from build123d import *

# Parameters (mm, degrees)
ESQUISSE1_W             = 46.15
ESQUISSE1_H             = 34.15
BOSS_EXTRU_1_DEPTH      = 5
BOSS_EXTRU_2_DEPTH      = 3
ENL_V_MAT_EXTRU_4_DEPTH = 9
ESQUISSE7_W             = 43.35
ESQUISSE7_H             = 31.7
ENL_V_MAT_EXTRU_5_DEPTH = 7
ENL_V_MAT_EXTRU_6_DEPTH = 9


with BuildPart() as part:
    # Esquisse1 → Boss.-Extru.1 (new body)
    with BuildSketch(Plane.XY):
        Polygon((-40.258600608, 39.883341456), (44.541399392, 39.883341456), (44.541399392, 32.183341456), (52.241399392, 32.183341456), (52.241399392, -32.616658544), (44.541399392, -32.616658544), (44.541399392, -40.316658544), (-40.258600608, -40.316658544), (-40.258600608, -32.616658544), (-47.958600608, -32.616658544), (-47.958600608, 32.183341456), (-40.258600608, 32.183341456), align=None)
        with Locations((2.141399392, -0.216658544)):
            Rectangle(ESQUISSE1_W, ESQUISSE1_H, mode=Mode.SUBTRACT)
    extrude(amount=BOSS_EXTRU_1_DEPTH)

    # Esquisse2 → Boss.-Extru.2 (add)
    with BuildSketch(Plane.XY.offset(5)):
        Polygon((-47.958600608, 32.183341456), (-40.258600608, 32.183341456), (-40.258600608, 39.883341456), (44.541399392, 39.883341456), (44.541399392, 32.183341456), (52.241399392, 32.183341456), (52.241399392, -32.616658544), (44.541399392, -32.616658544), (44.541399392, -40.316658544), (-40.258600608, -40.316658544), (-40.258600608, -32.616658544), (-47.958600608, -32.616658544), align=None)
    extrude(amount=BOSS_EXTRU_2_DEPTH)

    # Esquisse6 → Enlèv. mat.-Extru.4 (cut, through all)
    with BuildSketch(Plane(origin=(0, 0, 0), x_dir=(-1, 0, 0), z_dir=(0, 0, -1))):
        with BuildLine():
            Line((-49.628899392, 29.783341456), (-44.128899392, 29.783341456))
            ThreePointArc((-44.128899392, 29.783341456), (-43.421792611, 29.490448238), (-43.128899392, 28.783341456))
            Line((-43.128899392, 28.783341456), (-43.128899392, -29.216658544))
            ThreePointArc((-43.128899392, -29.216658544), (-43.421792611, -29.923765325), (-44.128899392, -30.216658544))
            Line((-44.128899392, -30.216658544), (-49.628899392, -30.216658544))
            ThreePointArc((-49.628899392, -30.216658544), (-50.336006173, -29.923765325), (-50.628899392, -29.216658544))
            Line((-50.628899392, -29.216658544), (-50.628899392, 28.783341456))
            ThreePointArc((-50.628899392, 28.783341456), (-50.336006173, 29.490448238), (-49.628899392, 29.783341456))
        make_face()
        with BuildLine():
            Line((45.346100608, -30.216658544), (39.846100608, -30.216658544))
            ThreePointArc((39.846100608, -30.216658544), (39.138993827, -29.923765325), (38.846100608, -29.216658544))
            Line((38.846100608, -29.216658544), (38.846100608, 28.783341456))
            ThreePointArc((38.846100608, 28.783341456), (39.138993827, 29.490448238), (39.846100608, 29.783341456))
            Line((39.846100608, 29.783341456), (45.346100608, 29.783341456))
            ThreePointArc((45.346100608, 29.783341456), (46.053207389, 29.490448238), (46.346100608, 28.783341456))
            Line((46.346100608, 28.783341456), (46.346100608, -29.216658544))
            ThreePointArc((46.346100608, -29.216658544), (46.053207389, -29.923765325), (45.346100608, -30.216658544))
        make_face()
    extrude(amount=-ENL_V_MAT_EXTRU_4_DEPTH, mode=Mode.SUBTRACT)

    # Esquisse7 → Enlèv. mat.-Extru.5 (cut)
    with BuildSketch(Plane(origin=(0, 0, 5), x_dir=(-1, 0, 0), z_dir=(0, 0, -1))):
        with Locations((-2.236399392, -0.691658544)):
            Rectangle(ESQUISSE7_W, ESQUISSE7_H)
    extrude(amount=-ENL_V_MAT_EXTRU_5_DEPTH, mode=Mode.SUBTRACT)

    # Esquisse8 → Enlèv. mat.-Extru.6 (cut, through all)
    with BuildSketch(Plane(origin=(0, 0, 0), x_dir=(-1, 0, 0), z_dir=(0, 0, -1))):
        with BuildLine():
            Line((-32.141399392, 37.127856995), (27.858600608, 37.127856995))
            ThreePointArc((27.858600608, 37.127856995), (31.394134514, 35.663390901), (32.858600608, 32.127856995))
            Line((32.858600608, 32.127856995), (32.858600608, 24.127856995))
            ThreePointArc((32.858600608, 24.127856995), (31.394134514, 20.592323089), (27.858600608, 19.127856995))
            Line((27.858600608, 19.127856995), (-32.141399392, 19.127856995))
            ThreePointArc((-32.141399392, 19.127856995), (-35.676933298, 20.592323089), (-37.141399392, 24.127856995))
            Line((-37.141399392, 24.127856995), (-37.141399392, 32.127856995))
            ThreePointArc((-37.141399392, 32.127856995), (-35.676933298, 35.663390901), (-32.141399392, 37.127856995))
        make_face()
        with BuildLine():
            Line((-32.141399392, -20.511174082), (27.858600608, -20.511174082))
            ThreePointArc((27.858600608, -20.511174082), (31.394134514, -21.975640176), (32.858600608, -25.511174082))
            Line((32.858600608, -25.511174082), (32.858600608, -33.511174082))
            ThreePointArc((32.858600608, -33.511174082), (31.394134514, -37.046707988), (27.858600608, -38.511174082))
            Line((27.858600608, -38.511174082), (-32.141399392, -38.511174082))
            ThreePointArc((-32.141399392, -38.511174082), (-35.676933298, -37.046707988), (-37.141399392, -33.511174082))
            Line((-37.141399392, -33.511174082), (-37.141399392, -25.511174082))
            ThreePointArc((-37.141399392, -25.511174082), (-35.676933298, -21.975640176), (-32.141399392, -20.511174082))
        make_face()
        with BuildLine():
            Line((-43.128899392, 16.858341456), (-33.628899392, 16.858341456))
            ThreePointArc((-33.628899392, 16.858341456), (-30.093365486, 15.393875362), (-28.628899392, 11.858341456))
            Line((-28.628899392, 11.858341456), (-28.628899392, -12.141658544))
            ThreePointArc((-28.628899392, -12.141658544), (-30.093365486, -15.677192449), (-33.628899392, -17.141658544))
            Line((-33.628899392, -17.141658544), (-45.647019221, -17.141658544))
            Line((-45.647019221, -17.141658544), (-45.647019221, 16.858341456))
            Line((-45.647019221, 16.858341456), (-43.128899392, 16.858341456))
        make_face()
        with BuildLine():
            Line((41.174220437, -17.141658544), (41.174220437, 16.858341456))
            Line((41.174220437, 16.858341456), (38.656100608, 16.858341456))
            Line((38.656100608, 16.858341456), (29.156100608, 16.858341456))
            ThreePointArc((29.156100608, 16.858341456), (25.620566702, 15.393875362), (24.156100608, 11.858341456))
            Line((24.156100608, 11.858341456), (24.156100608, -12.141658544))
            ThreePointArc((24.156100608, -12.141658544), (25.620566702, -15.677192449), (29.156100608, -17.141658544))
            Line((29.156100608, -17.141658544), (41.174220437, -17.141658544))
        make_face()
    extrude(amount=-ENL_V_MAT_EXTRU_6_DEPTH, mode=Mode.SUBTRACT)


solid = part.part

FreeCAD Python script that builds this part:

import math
import FreeCAD as App
import Part
import Sketcher

V = App.Vector

doc = App.newDocument("Part")
body = doc.addObject("PartDesign::Body", "Body")

# Sketch on XY plane
sketch1 = body.newObject("Sketcher::SketchObject", "Sketch")
sketch1.AttachmentSupport = (doc.getObject("XY_Plane"), [""])
sketch1.MapMode = "FlatFace"
sketch1.addGeometry([
    Part.LineSegment(V(45, 40, 0), V(-40, 40, 0)),  # 0
    Part.LineSegment(V(-40, 40, 0), V(-40, 32, 0)),  # 1
    Part.LineSegment(V(-40, 32, 0), V(-48, 32, 0)),  # 2
    Part.LineSegment(V(-48, 32, 0), V(-48, -33, 0)),  # 3
    Part.LineSegment(V(-48, -33, 0), V(-40, -33, 0)),  # 4
    Part.LineSegment(V(-40, -33, 0), V(-40, -40, 0)),  # 5
    Part.LineSegment(V(-40, -40, 0), V(45, -40, 0)),  # 6
    Part.LineSegment(V(45, -40, 0), V(45, -33, 0)),  # 7
    Part.LineSegment(V(45, -33, 0), V(52, -33, 0)),  # 8
    Part.LineSegment(V(52, -33, 0), V(52, 32, 0)),  # 9
    Part.LineSegment(V(52, 32, 0), V(45, 32, 0)),  # 10
    Part.LineSegment(V(45, 32, 0), V(45, 40, 0)),  # 11
    Part.LineSegment(V(-21, -17, 0), V(-21, 17, 0)),  # 12
    Part.LineSegment(V(-21, 17, 0), V(25, 17, 0)),  # 13
    Part.LineSegment(V(25, 17, 0), V(25, -17, 0)),  # 14
    Part.LineSegment(V(25, -17, 0), V(-21, -17, 0)),  # 15
], False)
sketch1.addConstraint([
    Sketcher.Constraint("Coincident", 0, 2, 1, 1),
    Sketcher.Constraint("Coincident", 1, 2, 2, 1),
    Sketcher.Constraint("Coincident", 2, 2, 3, 1),
    Sketcher.Constraint("Coincident", 3, 2, 4, 1),
    Sketcher.Constraint("Coincident", 4, 2, 5, 1),
    Sketcher.Constraint("Coincident", 5, 2, 6, 1),
    Sketcher.Constraint("Coincident", 6, 2, 7, 1),
    Sketcher.Constraint("Coincident", 7, 2, 8, 1),
    Sketcher.Constraint("Coincident", 8, 2, 9, 1),
    Sketcher.Constraint("Coincident", 9, 2, 10, 1),
    Sketcher.Constraint("Coincident", 10, 2, 11, 1),
    Sketcher.Constraint("Coincident", 11, 2, 0, 1),
    Sketcher.Constraint("Coincident", 12, 2, 13, 1),
    Sketcher.Constraint("Coincident", 13, 2, 14, 1),
    Sketcher.Constraint("Coincident", 14, 2, 15, 1),
    Sketcher.Constraint("Coincident", 15, 2, 12, 1),
    Sketcher.Constraint("Horizontal", 0),
    Sketcher.Constraint("Vertical", 1),
    Sketcher.Constraint("Horizontal", 2),
    Sketcher.Constraint("Vertical", 3),
    Sketcher.Constraint("Horizontal", 4),
    Sketcher.Constraint("Vertical", 5),
    Sketcher.Constraint("Horizontal", 6),
    Sketcher.Constraint("Vertical", 7),
    Sketcher.Constraint("Horizontal", 8),
    Sketcher.Constraint("Vertical", 9),
    Sketcher.Constraint("Horizontal", 10),
    Sketcher.Constraint("Vertical", 11),
    Sketcher.Constraint("Vertical", 12),
    Sketcher.Constraint("Horizontal", 13),
    Sketcher.Constraint("Vertical", 14),
    Sketcher.Constraint("Horizontal", 15),
    Sketcher.Constraint("Horizontal", 4, 2, 7, 2),
    Sketcher.Constraint("Horizontal", 2, 2, 9, 2),
    Sketcher.Constraint("Vertical", 1, 2, 4, 2),
    Sketcher.Constraint("Vertical", 7, 2, 10, 2),
    Sketcher.Constraint("Equal", 4, 8),
    Sketcher.Constraint("Equal", 10, 1),
    Sketcher.Constraint("Equal", 1, 5),
    Sketcher.Constraint("DistanceX", 0, 2, 0, 1, 84.8),
    Sketcher.Constraint("DistanceX", 2, 2, 2, 1, 7.7),
    Sketcher.Constraint("DistanceY", 3, 2, 3, 1, 64.8),
    Sketcher.Constraint("DistanceX", 13, 1, 13, 2, 46.15),
    Sketcher.Constraint("DistanceY", 12, 1, 12, 2, 34.15),
    Sketcher.Constraint("DistanceX", 1, 2, 12, 2, 19.325),
    Sketcher.Constraint("DistanceY", 12, 2, 1, 2, 15.325),
    Sketcher.Constraint("DistanceX", 0, 2, -1, 1, 40.258601),
    Sketcher.Constraint("DistanceY", -1, 1, 0, 2, 39.883341),
])
pad1 = body.newObject("PartDesign::Pad", "Pad")
pad1.Profile = sketch1
pad1.Length = 5

# Sketch on XY plane
sketch2 = body.newObject("Sketcher::SketchObject", "Sketch001")
sketch2.AttachmentSupport = (doc.getObject("XY_Plane"), [""])
sketch2.MapMode = "FlatFace"
sketch2.AttachmentOffset = App.Placement(V(0, 0, 5), App.Rotation())
sketch2.addGeometry([
    Part.LineSegment(V(-40, 32, 0), V(-48, 32, 0)),  # 0
    Part.LineSegment(V(-48, 32, 0), V(-48, -33, 0)),  # 1
    Part.LineSegment(V(-48, -33, 0), V(-40, -33, 0)),  # 2
    Part.LineSegment(V(-40, -33, 0), V(-40, -40, 0)),  # 3
    Part.LineSegment(V(-40, -40, 0), V(45, -40, 0)),  # 4
    Part.LineSegment(V(45, -40, 0), V(45, -33, 0)),  # 5
    Part.LineSegment(V(45, -33, 0), V(52, -33, 0)),  # 6
    Part.LineSegment(V(52, -33, 0), V(52, 32, 0)),  # 7
    Part.LineSegment(V(52, 32, 0), V(45, 32, 0)),  # 8
    Part.LineSegment(V(45, 32, 0), V(45, 40, 0)),  # 9
    Part.LineSegment(V(45, 40, 0), V(-40, 40, 0)),  # 10
    Part.LineSegment(V(-40, 40, 0), V(-40, 32, 0)),  # 11
], False)
sketch2.addConstraint([
    Sketcher.Constraint("Coincident", 0, 2, 1, 1),
    Sketcher.Constraint("Coincident", 1, 2, 2, 1),
    Sketcher.Constraint("Coincident", 2, 2, 3, 1),
    Sketcher.Constraint("Coincident", 3, 2, 4, 1),
    Sketcher.Constraint("Coincident", 4, 2, 5, 1),
    Sketcher.Constraint("Coincident", 5, 2, 6, 1),
    Sketcher.Constraint("Coincident", 6, 2, 7, 1),
    Sketcher.Constraint("Coincident", 7, 2, 8, 1),
    Sketcher.Constraint("Coincident", 8, 2, 9, 1),
    Sketcher.Constraint("Coincident", 9, 2, 10, 1),
    Sketcher.Constraint("Coincident", 10, 2, 11, 1),
    Sketcher.Constraint("Coincident", 11, 2, 0, 1),
    Sketcher.Constraint("Horizontal", 0),
    Sketcher.Constraint("Vertical", 1),
    Sketcher.Constraint("Horizontal", 2),
    Sketcher.Constraint("Vertical", 3),
    Sketcher.Constraint("Horizontal", 4),
    Sketcher.Constraint("Vertical", 5),
    Sketcher.Constraint("Horizontal", 6),
    Sketcher.Constraint("Vertical", 7),
    Sketcher.Constraint("Horizontal", 8),
    Sketcher.Constraint("Vertical", 9),
    Sketcher.Constraint("Horizontal", 10),
    Sketcher.Constraint("Vertical", 11),
    Sketcher.Constraint("Horizontal", 2, 2, 5, 2),
    Sketcher.Constraint("Horizontal", 0, 2, 7, 2),
    Sketcher.Constraint("Vertical", 5, 2, 8, 2),
    Sketcher.Constraint("Vertical", 3, 2, 10, 2),
    Sketcher.Constraint("Equal", 2, 6),
    Sketcher.Constraint("Equal", 8, 3),
    Sketcher.Constraint("Equal", 5, 9),
    Sketcher.Constraint("DistanceX", 0, 2, 0, 1, 7.7),
    Sketcher.Constraint("DistanceX", 4, 1, 4, 2, 84.8),
    Sketcher.Constraint("DistanceY", 1, 2, 1, 1, 64.8),
    Sketcher.Constraint("DistanceX", 0, 2, -1, 1, 47.958601),
    Sketcher.Constraint("DistanceY", -1, 1, 0, 2, 32.183341),
])
pad2 = body.newObject("PartDesign::Pad", "Pad001")
pad2.Profile = sketch2
pad2.Length = 3

# Sketch on XY plane
sketch3 = body.newObject("Sketcher::SketchObject", "Sketch002")
sketch3.AttachmentSupport = (doc.getObject("XY_Plane"), [""])
sketch3.MapMode = "FlatFace"
sketch3.addGeometry([
    Part.LineSegment(V(44.1, 29.8, 0), V(49.6, 29.8, 0)),  # 0
    Part.ArcOfCircle(Part.Circle(V(49.6, 28.8, 0), V(0, 0, 1), 1), math.radians(0), math.radians(90)),  # 1
    Part.LineSegment(V(50.6, 28.8, 0), V(50.6, -29.2, 0)),  # 2
    Part.ArcOfCircle(Part.Circle(V(49.6, -29.2, 0), V(0, 0, 1), 1), math.radians(-90), math.radians(0)),  # 3
    Part.LineSegment(V(49.6, -30.2, 0), V(44.1, -30.2, 0)),  # 4
    Part.ArcOfCircle(Part.Circle(V(44.1, -29.2, 0), V(0, 0, 1), 1), math.radians(-180), math.radians(-90)),  # 5
    Part.LineSegment(V(43.1, -29.2, 0), V(43.1, 28.8, 0)),  # 6
    Part.ArcOfCircle(Part.Circle(V(44.1, 28.8, 0), V(0, 0, 1), 1), math.radians(90), math.radians(180)),  # 7
    Part.LineSegment(V(-39.8, -30.2, 0), V(-45.3, -30.2, 0)),  # 8
    Part.ArcOfCircle(Part.Circle(V(-45.3, -29.2, 0), V(0, 0, 1), 1), math.radians(-180), math.radians(-90)),  # 9
    Part.LineSegment(V(-46.3, -29.2, 0), V(-46.3, 28.8, 0)),  # 10
    Part.ArcOfCircle(Part.Circle(V(-45.3, 28.8, 0), V(0, 0, 1), 1), math.radians(90), math.radians(180)),  # 11
    Part.LineSegment(V(-45.3, 29.8, 0), V(-39.8, 29.8, 0)),  # 12
    Part.ArcOfCircle(Part.Circle(V(-39.8, 28.8, 0), V(0, 0, 1), 1), math.radians(0), math.radians(90)),  # 13
    Part.LineSegment(V(-38.8, 28.8, 0), V(-38.8, -29.2, 0)),  # 14
    Part.ArcOfCircle(Part.Circle(V(-39.8, -29.2, 0), V(0, 0, 1), 1), math.radians(-90), math.radians(0)),  # 15
], False)
sketch3.addConstraint([
    Sketcher.Constraint("Tangent", 0, 2, 1, 2),
    Sketcher.Constraint("Tangent", 1, 1, 2, 1),
    Sketcher.Constraint("Tangent", 2, 2, 3, 2),
    Sketcher.Constraint("Tangent", 3, 1, 4, 1),
    Sketcher.Constraint("Tangent", 4, 2, 5, 2),
    Sketcher.Constraint("Tangent", 5, 1, 6, 1),
    Sketcher.Constraint("Tangent", 6, 2, 7, 2),
    Sketcher.Constraint("Tangent", 7, 1, 0, 1),
    Sketcher.Constraint("Tangent", 8, 2, 9, 2),
    Sketcher.Constraint("Tangent", 9, 1, 10, 1),
    Sketcher.Constraint("Tangent", 10, 2, 11, 2),
    Sketcher.Constraint("Tangent", 11, 1, 12, 1),
    Sketcher.Constraint("Tangent", 12, 2, 13, 2),
    Sketcher.Constraint("Tangent", 13, 1, 14, 1),
    Sketcher.Constraint("Tangent", 14, 2, 15, 2),
    Sketcher.Constraint("Tangent", 15, 1, 8, 1),
    Sketcher.Constraint("Horizontal", 0),
    Sketcher.Constraint("Vertical", 2),
    Sketcher.Constraint("Horizontal", 4),
    Sketcher.Constraint("Vertical", 6),
    Sketcher.Constraint("Horizontal", 8),
    Sketcher.Constraint("Vertical", 10),
    Sketcher.Constraint("Horizontal", 12),
    Sketcher.Constraint("Vertical", 14),
    Sketcher.Constraint("Equal", 1, 3),
    Sketcher.Constraint("Equal", 3, 5),
    Sketcher.Constraint("Equal", 5, 7),
    Sketcher.Constraint("Equal", 7, 9),
    Sketcher.Constraint("Equal", 9, 11),
    Sketcher.Constraint("Equal", 11, 13),
    Sketcher.Constraint("Equal", 13, 15),
    Sketcher.Constraint("Horizontal", 5, 3, 9, 3),
    Sketcher.Constraint("Horizontal", 7, 3, 11, 3),
    Sketcher.Constraint("Equal", 4, 8),
    Sketcher.Constraint("Radius", 1, 1.0),
    Sketcher.Constraint("DistanceY", 2, 2, 2, 1, 58.0),
    Sketcher.Constraint("DistanceX", 0, 1, 0, 2, 5.5),
    Sketcher.Constraint("DistanceX", 9, 3, 5, 3, 89.475),
    Sketcher.Constraint("DistanceX", -1, 1, 1, 3, 49.628899),
    Sketcher.Constraint("DistanceY", -1, 1, 1, 3, 28.783341),
])
pocket1 = body.newObject("PartDesign::Pocket", "Pocket")
pocket1.Profile = sketch3
pocket1.Type = "ThroughAll"
pocket1.Reversed = True

# Sketch on XY plane
sketch4 = body.newObject("Sketcher::SketchObject", "Sketch003")
sketch4.AttachmentSupport = (doc.getObject("XY_Plane"), [""])
sketch4.MapMode = "FlatFace"
sketch4.AttachmentOffset = App.Placement(V(0, 0, 5), App.Rotation())
sketch4.addGeometry([
    Part.LineSegment(V(24, 15, 0), V(24, -17, 0)),
    Part.LineSegment(V(24, -17, 0), V(-19, -17, 0)),
    Part.LineSegment(V(-19, -17, 0), V(-19, 15, 0)),
    Part.LineSegment(V(-19, 15, 0), V(24, 15, 0)),
], False)
sketch4.addConstraint([
    Sketcher.Constraint("Coincident", 0, 2, 1, 1),
    Sketcher.Constraint("Coincident", 1, 2, 2, 1),
    Sketcher.Constraint("Coincident", 2, 2, 3, 1),
    Sketcher.Constraint("Coincident", 3, 2, 0, 1),
    Sketcher.Constraint("Vertical", 0),
    Sketcher.Constraint("Horizontal", 1),
    Sketcher.Constraint("Vertical", 2),
    Sketcher.Constraint("Horizontal", 3),
    Sketcher.Constraint("DistanceY", 0, 2, 0, 1, 31.7),
    Sketcher.Constraint("DistanceX", 1, 2, 1, 1, 43.35),
    Sketcher.Constraint("DistanceX", -1, 1, 0, 2, 23.911399),
    Sketcher.Constraint("DistanceY", 0, 2, -1, 1, 16.541659),
])
pocket2 = body.newObject("PartDesign::Pocket", "Pocket001")
pocket2.Profile = sketch4
pocket2.Length = 7
pocket2.Reversed = True

# Sketch on XY plane
sketch5 = body.newObject("Sketcher::SketchObject", "Sketch004")
sketch5.AttachmentSupport = (doc.getObject("XY_Plane"), [""])
sketch5.MapMode = "FlatFace"
sketch5.addGeometry([
    Part.LineSegment(V(-28, 37, 0), V(32, 37, 0)),  # 0
    Part.ArcOfCircle(Part.Circle(V(32, 32, 0), V(0, 0, 1), 5), math.radians(0), math.radians(90)),  # 1
    Part.LineSegment(V(37, 32, 0), V(37, 24, 0)),  # 2
    Part.ArcOfCircle(Part.Circle(V(32, 24, 0), V(0, 0, 1), 5), math.radians(-90), math.radians(0)),  # 3
    Part.LineSegment(V(32, 19, 0), V(-28, 19, 0)),  # 4
    Part.ArcOfCircle(Part.Circle(V(-28, 24, 0), V(0, 0, 1), 5), math.radians(180), math.radians(270)),  # 5
    Part.LineSegment(V(-33, 24, 0), V(-33, 32, 0)),  # 6
    Part.ArcOfCircle(Part.Circle(V(-28, 32, 0), V(0, 0, 1), 5), math.radians(90), math.radians(180)),  # 7
    Part.LineSegment(V(-28, -21, 0), V(32, -21, 0)),  # 8
    Part.ArcOfCircle(Part.Circle(V(32, -26, 0), V(0, 0, 1), 5), math.radians(0), math.radians(90)),  # 9
    Part.LineSegment(V(37, -26, 0), V(37, -34, 0)),  # 10
    Part.ArcOfCircle(Part.Circle(V(32, -34, 0), V(0, 0, 1), 5), math.radians(-90), math.radians(0)),  # 11
    Part.LineSegment(V(32, -39, 0), V(-28, -39, 0)),  # 12
    Part.ArcOfCircle(Part.Circle(V(-28, -34, 0), V(0, 0, 1), 5), math.radians(180), math.radians(270)),  # 13
    Part.LineSegment(V(-33, -34, 0), V(-33, -26, 0)),  # 14
    Part.ArcOfCircle(Part.Circle(V(-28, -26, 0), V(0, 0, 1), 5), math.radians(90), math.radians(180)),  # 15
    Part.ArcOfCircle(Part.Circle(V(34, 12, 0), V(0, 0, 1), 5), math.radians(90), math.radians(180)),  # 16
    Part.LineSegment(V(34, 17, 0), V(46, 17, 0)),  # 17
    Part.LineSegment(V(46, 17, 0), V(46, -17, 0)),  # 18
    Part.LineSegment(V(46, -17, 0), V(34, -17, 0)),  # 19
    Part.ArcOfCircle(Part.Circle(V(34, -12, 0), V(0, 0, 1), 5), math.radians(-180), math.radians(-90)),  # 20
    Part.LineSegment(V(29, -12, 0), V(29, 12, 0)),  # 21
    Part.LineSegment(V(-41, -17, 0), V(-41, 17, 0)),  # 22
    Part.LineSegment(V(-41, 17, 0), V(-29, 17, 0)),  # 23
    Part.ArcOfCircle(Part.Circle(V(-29, 12, 0), V(0, 0, 1), 5), math.radians(0), math.radians(90)),  # 24
    Part.LineSegment(V(-24, 12, 0), V(-24, -12, 0)),  # 25
    Part.ArcOfCircle(Part.Circle(V(-29, -12, 0), V(0, 0, 1), 5), math.radians(-90), math.radians(0)),  # 26
    Part.LineSegment(V(-29, -17, 0), V(-41, -17, 0)),  # 27
], False)
sketch5.addConstraint([
    Sketcher.Constraint("Tangent", 0, 2, 1, 2),
    Sketcher.Constraint("Tangent", 1, 1, 2, 1),
    Sketcher.Constraint("Tangent", 2, 2, 3, 2),
    Sketcher.Constraint("Tangent", 3, 1, 4, 1),
    Sketcher.Constraint("Tangent", 4, 2, 5, 2),
    Sketcher.Constraint("Tangent", 5, 1, 6, 1),
    Sketcher.Constraint("Tangent", 6, 2, 7, 2),
    Sketcher.Constraint("Tangent", 7, 1, 0, 1),
    Sketcher.Constraint("Tangent", 8, 2, 9, 2),
    Sketcher.Constraint("Tangent", 9, 1, 10, 1),
    Sketcher.Constraint("Tangent", 10, 2, 11, 2),
    Sketcher.Constraint("Tangent", 11, 1, 12, 1),
    Sketcher.Constraint("Tangent", 12, 2, 13, 2),
    Sketcher.Constraint("Tangent", 13, 1, 14, 1),
    Sketcher.Constraint("Tangent", 14, 2, 15, 2),
    Sketcher.Constraint("Tangent", 15, 1, 8, 1),
    Sketcher.Constraint("Tangent", 16, 1, 17, 1),
    Sketcher.Constraint("Coincident", 17, 2, 18, 1),
    Sketcher.Constraint("Coincident", 18, 2, 19, 1),
    Sketcher.Constraint("Tangent", 19, 2, 20, 2),
    Sketcher.Constraint("Tangent", 20, 1, 21, 1),
    Sketcher.Constraint("Tangent", 21, 2, 16, 2),
    Sketcher.Constraint("Coincident", 22, 2, 23, 1),
    Sketcher.Constraint("Tangent", 23, 2, 24, 2),
    Sketcher.Constraint("Tangent", 24, 1, 25, 1),
    Sketcher.Constraint("Tangent", 25, 2, 26, 2),
    Sketcher.Constraint("Tangent", 26, 1, 27, 1),
    Sketcher.Constraint("Coincident", 27, 2, 22, 1),
    Sketcher.Constraint("Horizontal", 0),
    Sketcher.Constraint("Vertical", 2),
    Sketcher.Constraint("Horizontal", 4),
    Sketcher.Constraint("Vertical", 6),
    Sketcher.Constraint("Horizontal", 8),
    Sketcher.Constraint("Vertical", 10),
    Sketcher.Constraint("Horizontal", 12),
    Sketcher.Constraint("Vertical", 14),
    Sketcher.Constraint("Horizontal", 17),
    Sketcher.Constraint("Vertical", 18),
    Sketcher.Constraint("Horizontal", 19),
    Sketcher.Constraint("Vertical", 21),
    Sketcher.Constraint("Vertical", 22),
    Sketcher.Constraint("Horizontal", 23),
    Sketcher.Constraint("Vertical", 25),
    Sketcher.Constraint("Horizontal", 27),
    Sketcher.Constraint("Equal", 1, 3),
    Sketcher.Constraint("Equal", 3, 5),
    Sketcher.Constraint("Equal", 5, 7),
    Sketcher.Constraint("Equal", 7, 9),
    Sketcher.Constraint("Equal", 9, 11),
    Sketcher.Constraint("Equal", 11, 13),
    Sketcher.Constraint("Equal", 13, 15),
    Sketcher.Constraint("Equal", 15, 16),
    Sketcher.Constraint("Equal", 16, 20),
    Sketcher.Constraint("Equal", 20, 24),
    Sketcher.Constraint("Equal", 24, 26),
    Sketcher.Constraint("Horizontal", 16, 3, 24, 3),
    Sketcher.Constraint("Horizontal", 20, 3, 26, 3),
    Sketcher.Constraint("Vertical", 3, 3, 9, 3),
    Sketcher.Constraint("Vertical", 7, 3, 13, 3),
    Sketcher.Constraint("Equal", 19, 23),
    Sketcher.Constraint("Equal", 6, 10),
    Sketcher.Constraint("Radius", 1, 5.0),
    Sketcher.Constraint("DistanceX", 0, 1, 0, 2, 60.0),
    Sketcher.Constraint("DistanceY", 2, 2, 2, 1, 8.0),
    Sketcher.Constraint("DistanceY", 18, 2, 18, 1, 34.0),
    Sketcher.Constraint("DistanceX", 17, 1, 17, 2, 12.01812),
    Sketcher.Constraint("DistanceX", -1, 1, 1, 3, 32.141399),
    Sketcher.Constraint("DistanceX", -1, 1, 16, 3, 33.628899),
    Sketcher.Constraint("DistanceX", 24, 3, -1, 1, 29.156101),
    Sketcher.Constraint("DistanceY", -1, 1, 16, 3, 11.858341),
    Sketcher.Constraint("DistanceY", 9, 3, 3, 3, 49.639031),
    Sketcher.Constraint("DistanceY", -1, 1, 1, 3, 32.127857),
])
pocket3 = body.newObject("PartDesign::Pocket", "Pocket002")
pocket3.Profile = sketch5
pocket3.Type = "ThroughAll"
pocket3.Reversed = True

doc.recompute()
